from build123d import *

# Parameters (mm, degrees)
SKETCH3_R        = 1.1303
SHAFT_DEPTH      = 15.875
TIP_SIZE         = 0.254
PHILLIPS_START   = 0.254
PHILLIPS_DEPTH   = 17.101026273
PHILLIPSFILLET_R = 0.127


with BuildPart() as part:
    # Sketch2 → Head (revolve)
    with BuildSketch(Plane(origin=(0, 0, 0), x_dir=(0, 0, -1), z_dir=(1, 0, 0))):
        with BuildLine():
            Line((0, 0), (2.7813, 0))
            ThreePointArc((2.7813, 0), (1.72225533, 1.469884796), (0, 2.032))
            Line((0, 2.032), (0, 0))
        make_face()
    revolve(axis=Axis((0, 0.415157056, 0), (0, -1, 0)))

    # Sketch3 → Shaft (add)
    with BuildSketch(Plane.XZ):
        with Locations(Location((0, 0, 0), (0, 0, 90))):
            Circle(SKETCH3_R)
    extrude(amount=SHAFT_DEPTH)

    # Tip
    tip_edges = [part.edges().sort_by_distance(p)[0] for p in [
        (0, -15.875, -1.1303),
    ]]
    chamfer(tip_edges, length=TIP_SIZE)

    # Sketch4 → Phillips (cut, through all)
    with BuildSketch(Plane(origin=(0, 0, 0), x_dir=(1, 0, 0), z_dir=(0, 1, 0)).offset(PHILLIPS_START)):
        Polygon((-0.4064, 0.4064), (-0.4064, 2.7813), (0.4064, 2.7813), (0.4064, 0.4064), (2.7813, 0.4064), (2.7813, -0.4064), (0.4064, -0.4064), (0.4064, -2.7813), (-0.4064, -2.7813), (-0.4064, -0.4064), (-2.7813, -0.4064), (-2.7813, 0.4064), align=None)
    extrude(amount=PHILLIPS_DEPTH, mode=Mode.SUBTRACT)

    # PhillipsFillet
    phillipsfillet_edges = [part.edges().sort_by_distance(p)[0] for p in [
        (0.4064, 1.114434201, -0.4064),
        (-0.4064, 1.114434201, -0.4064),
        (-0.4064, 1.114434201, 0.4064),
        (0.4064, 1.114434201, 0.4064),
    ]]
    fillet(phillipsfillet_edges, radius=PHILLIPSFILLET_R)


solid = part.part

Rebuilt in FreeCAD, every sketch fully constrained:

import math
import FreeCAD as App
import Part
import Sketcher

V = App.Vector
Q = App.Units.Quantity


def edges_at(feature, points):
    """Names of the edges that pass closest to the given points."""
    edges = feature.Shape.Edges
    near = lambda p: min(range(len(edges)), key=lambda i: edges[i].distToShape(Part.Vertex(*p))[0])
    return sorted({f"Edge{near(p) + 1}" for p in points})


def add_polygon(sketch, points):
    """Adds a closed chain of lines whose ends are joined by coincident constraints."""
    first, n = sketch.GeometryCount, len(points)
    for a, b in zip(points, points[1:] + points[:1]):
        sketch.addGeometry(Part.LineSegment(App.Vector(*a, 0), App.Vector(*b, 0)), False)
    for i in range(n):
        sketch.addConstraint(Sketcher.Constraint("Coincident", first + i, 2, first + (i + 1) % n, 1))

doc = App.newDocument("Part")
body = doc.addObject("PartDesign::Body", "Body")

# Sketch on YZ plane
sketch1 = body.newObject("Sketcher::SketchObject", "Sketch")
sketch1.AttachmentSupport = (doc.getObject("YZ_Plane"), [""])
sketch1.MapMode = "FlatFace"
sketch1.addGeometry([
    Part.LineSegment(V(0, 0, 0), V(0, -2.8, 0)),
    Part.ArcOfCircle(Part.Circle(V(-0.9, 0, 0), V(0, 0, 1), 2.9), math.radians(-72), math.radians(0)),
    Part.LineSegment(V(2, 0, 0), V(0, 0, 0)),
], False)
sketch1.addConstraint([
    Sketcher.Constraint("Coincident", 0, 2, 1, 1),
    Sketcher.Constraint("Coincident", 1, 2, 2, 1),
    Sketcher.Constraint("Coincident", 2, 2, 0, 1),
    Sketcher.Constraint("Vertical", 0),
    Sketcher.Constraint("Horizontal", 2),
    Sketcher.Constraint("Coincident", 2, 2, -1, 1),
    Sketcher.Constraint("PointOnObject", 1, 3, -1),
    Sketcher.Constraint("DistanceX", 2, 2, 2, 1, Q("0.08 in")),
    Sketcher.Constraint("DistanceY", 0, 2, 0, 1, Q("0.1095 in")),
])
revolution = body.newObject("PartDesign::Revolution", "Revolution")
revolution.Profile = sketch1
revolution.ReferenceAxis = (sketch1, ["H_Axis"])
revolution.Angle = 360

# Sketch on XZ plane
sketch2 = body.newObject("Sketcher::SketchObject", "Sketch001")
sketch2.AttachmentSupport = (doc.getObject("XZ_Plane"), [""])
sketch2.MapMode = "FlatFace"
sketch2.addGeometry(Part.Circle(V(0, 0, 0), V(0, 0, 1), 1.1), False)
sketch2.addConstraint([
    Sketcher.Constraint("Coincident", 0, 3, -1, 1),
    Sketcher.Constraint("Diameter", 0, Q("0.089 in")),
])
pad1 = body.newObject("PartDesign::Pad", "Pad")
pad1.Profile = sketch2
pad1.Length = Q("0.625 in")
doc.recompute()

chamfer = body.newObject("PartDesign::Chamfer", "Chamfer")
chamfer.Base = (pad1, edges_at(pad1, [(0, -15.875, -1.13)]))
chamfer.Size = Q("0.01 in")

# Sketch on XZ plane
sketch3 = body.newObject("Sketcher::SketchObject", "Sketch002")
sketch3.AttachmentSupport = (doc.getObject("XZ_Plane"), [""])
sketch3.MapMode = "FlatFace"
sketch3.AttachmentOffset = App.Placement(V(0, 0, -0.01 * 25.4), App.Rotation())
add_polygon(sketch3, [(-0.4, -2.8), (-0.4, -0.4), (-2.8, -0.4), (-2.8, 0.4), (-0.4, 0.4), (-0.4, 2.8), (0.4, 2.8), (0.4, 0.4), (2.8, 0.4), (2.8, -0.4), (0.4, -0.4), (0.4, -2.8)])  # lines 0-11
sketch3.addConstraint([
    Sketcher.Constraint("Vertical", 0),
    Sketcher.Constraint("Horizontal", 1),
    Sketcher.Constraint("Vertical", 2),
    Sketcher.Constraint("Horizontal", 3),
    Sketcher.Constraint("Vertical", 4),
    Sketcher.Constraint("Horizontal", 5),
    Sketcher.Constraint("Vertical", 6),
    Sketcher.Constraint("Horizontal", 7),
    Sketcher.Constraint("Vertical", 8),
    Sketcher.Constraint("Horizontal", 9),
    Sketcher.Constraint("Vertical", 10),
    Sketcher.Constraint("Horizontal", 11),
    Sketcher.Constraint("Symmetric", 0, 2, 6, 2, -1, 1),
    Sketcher.Constraint("Symmetric", 2, 2, 8, 2, -1, 1),
    Sketcher.Constraint("Symmetric", 4, 2, 10, 2, -1, 1),
    Sketcher.Constraint("Symmetric", 3, 2, 6, 2, -2),
    Sketcher.Constraint("Equal", 9, 0),
    Sketcher.Constraint("Equal", 11, 2),
    Sketcher.Constraint("DistanceX", 5, 1, 5, 2, Q("0.032 in")),
    Sketcher.Constraint("DistanceX", 1, 2, 1, 1, Q("0.0935 in")),
])
pocket1 = body.newObject("PartDesign::Pocket", "Pocket")
pocket1.Profile = sketch3
pocket1.Type = "ThroughAll"
doc.recompute()

fillet = body.newObject("PartDesign::Fillet", "Fillet")
fillet.Base = (pocket1, edges_at(pocket1, [
    (0.406, 1.114, -0.406),
    (-0.406, 1.114, -0.406),
    (-0.406, 1.114, 0.406),
    (0.406, 1.114, 0.406),
]))
fillet.Radius = Q("0.005 in")

doc.recompute()
